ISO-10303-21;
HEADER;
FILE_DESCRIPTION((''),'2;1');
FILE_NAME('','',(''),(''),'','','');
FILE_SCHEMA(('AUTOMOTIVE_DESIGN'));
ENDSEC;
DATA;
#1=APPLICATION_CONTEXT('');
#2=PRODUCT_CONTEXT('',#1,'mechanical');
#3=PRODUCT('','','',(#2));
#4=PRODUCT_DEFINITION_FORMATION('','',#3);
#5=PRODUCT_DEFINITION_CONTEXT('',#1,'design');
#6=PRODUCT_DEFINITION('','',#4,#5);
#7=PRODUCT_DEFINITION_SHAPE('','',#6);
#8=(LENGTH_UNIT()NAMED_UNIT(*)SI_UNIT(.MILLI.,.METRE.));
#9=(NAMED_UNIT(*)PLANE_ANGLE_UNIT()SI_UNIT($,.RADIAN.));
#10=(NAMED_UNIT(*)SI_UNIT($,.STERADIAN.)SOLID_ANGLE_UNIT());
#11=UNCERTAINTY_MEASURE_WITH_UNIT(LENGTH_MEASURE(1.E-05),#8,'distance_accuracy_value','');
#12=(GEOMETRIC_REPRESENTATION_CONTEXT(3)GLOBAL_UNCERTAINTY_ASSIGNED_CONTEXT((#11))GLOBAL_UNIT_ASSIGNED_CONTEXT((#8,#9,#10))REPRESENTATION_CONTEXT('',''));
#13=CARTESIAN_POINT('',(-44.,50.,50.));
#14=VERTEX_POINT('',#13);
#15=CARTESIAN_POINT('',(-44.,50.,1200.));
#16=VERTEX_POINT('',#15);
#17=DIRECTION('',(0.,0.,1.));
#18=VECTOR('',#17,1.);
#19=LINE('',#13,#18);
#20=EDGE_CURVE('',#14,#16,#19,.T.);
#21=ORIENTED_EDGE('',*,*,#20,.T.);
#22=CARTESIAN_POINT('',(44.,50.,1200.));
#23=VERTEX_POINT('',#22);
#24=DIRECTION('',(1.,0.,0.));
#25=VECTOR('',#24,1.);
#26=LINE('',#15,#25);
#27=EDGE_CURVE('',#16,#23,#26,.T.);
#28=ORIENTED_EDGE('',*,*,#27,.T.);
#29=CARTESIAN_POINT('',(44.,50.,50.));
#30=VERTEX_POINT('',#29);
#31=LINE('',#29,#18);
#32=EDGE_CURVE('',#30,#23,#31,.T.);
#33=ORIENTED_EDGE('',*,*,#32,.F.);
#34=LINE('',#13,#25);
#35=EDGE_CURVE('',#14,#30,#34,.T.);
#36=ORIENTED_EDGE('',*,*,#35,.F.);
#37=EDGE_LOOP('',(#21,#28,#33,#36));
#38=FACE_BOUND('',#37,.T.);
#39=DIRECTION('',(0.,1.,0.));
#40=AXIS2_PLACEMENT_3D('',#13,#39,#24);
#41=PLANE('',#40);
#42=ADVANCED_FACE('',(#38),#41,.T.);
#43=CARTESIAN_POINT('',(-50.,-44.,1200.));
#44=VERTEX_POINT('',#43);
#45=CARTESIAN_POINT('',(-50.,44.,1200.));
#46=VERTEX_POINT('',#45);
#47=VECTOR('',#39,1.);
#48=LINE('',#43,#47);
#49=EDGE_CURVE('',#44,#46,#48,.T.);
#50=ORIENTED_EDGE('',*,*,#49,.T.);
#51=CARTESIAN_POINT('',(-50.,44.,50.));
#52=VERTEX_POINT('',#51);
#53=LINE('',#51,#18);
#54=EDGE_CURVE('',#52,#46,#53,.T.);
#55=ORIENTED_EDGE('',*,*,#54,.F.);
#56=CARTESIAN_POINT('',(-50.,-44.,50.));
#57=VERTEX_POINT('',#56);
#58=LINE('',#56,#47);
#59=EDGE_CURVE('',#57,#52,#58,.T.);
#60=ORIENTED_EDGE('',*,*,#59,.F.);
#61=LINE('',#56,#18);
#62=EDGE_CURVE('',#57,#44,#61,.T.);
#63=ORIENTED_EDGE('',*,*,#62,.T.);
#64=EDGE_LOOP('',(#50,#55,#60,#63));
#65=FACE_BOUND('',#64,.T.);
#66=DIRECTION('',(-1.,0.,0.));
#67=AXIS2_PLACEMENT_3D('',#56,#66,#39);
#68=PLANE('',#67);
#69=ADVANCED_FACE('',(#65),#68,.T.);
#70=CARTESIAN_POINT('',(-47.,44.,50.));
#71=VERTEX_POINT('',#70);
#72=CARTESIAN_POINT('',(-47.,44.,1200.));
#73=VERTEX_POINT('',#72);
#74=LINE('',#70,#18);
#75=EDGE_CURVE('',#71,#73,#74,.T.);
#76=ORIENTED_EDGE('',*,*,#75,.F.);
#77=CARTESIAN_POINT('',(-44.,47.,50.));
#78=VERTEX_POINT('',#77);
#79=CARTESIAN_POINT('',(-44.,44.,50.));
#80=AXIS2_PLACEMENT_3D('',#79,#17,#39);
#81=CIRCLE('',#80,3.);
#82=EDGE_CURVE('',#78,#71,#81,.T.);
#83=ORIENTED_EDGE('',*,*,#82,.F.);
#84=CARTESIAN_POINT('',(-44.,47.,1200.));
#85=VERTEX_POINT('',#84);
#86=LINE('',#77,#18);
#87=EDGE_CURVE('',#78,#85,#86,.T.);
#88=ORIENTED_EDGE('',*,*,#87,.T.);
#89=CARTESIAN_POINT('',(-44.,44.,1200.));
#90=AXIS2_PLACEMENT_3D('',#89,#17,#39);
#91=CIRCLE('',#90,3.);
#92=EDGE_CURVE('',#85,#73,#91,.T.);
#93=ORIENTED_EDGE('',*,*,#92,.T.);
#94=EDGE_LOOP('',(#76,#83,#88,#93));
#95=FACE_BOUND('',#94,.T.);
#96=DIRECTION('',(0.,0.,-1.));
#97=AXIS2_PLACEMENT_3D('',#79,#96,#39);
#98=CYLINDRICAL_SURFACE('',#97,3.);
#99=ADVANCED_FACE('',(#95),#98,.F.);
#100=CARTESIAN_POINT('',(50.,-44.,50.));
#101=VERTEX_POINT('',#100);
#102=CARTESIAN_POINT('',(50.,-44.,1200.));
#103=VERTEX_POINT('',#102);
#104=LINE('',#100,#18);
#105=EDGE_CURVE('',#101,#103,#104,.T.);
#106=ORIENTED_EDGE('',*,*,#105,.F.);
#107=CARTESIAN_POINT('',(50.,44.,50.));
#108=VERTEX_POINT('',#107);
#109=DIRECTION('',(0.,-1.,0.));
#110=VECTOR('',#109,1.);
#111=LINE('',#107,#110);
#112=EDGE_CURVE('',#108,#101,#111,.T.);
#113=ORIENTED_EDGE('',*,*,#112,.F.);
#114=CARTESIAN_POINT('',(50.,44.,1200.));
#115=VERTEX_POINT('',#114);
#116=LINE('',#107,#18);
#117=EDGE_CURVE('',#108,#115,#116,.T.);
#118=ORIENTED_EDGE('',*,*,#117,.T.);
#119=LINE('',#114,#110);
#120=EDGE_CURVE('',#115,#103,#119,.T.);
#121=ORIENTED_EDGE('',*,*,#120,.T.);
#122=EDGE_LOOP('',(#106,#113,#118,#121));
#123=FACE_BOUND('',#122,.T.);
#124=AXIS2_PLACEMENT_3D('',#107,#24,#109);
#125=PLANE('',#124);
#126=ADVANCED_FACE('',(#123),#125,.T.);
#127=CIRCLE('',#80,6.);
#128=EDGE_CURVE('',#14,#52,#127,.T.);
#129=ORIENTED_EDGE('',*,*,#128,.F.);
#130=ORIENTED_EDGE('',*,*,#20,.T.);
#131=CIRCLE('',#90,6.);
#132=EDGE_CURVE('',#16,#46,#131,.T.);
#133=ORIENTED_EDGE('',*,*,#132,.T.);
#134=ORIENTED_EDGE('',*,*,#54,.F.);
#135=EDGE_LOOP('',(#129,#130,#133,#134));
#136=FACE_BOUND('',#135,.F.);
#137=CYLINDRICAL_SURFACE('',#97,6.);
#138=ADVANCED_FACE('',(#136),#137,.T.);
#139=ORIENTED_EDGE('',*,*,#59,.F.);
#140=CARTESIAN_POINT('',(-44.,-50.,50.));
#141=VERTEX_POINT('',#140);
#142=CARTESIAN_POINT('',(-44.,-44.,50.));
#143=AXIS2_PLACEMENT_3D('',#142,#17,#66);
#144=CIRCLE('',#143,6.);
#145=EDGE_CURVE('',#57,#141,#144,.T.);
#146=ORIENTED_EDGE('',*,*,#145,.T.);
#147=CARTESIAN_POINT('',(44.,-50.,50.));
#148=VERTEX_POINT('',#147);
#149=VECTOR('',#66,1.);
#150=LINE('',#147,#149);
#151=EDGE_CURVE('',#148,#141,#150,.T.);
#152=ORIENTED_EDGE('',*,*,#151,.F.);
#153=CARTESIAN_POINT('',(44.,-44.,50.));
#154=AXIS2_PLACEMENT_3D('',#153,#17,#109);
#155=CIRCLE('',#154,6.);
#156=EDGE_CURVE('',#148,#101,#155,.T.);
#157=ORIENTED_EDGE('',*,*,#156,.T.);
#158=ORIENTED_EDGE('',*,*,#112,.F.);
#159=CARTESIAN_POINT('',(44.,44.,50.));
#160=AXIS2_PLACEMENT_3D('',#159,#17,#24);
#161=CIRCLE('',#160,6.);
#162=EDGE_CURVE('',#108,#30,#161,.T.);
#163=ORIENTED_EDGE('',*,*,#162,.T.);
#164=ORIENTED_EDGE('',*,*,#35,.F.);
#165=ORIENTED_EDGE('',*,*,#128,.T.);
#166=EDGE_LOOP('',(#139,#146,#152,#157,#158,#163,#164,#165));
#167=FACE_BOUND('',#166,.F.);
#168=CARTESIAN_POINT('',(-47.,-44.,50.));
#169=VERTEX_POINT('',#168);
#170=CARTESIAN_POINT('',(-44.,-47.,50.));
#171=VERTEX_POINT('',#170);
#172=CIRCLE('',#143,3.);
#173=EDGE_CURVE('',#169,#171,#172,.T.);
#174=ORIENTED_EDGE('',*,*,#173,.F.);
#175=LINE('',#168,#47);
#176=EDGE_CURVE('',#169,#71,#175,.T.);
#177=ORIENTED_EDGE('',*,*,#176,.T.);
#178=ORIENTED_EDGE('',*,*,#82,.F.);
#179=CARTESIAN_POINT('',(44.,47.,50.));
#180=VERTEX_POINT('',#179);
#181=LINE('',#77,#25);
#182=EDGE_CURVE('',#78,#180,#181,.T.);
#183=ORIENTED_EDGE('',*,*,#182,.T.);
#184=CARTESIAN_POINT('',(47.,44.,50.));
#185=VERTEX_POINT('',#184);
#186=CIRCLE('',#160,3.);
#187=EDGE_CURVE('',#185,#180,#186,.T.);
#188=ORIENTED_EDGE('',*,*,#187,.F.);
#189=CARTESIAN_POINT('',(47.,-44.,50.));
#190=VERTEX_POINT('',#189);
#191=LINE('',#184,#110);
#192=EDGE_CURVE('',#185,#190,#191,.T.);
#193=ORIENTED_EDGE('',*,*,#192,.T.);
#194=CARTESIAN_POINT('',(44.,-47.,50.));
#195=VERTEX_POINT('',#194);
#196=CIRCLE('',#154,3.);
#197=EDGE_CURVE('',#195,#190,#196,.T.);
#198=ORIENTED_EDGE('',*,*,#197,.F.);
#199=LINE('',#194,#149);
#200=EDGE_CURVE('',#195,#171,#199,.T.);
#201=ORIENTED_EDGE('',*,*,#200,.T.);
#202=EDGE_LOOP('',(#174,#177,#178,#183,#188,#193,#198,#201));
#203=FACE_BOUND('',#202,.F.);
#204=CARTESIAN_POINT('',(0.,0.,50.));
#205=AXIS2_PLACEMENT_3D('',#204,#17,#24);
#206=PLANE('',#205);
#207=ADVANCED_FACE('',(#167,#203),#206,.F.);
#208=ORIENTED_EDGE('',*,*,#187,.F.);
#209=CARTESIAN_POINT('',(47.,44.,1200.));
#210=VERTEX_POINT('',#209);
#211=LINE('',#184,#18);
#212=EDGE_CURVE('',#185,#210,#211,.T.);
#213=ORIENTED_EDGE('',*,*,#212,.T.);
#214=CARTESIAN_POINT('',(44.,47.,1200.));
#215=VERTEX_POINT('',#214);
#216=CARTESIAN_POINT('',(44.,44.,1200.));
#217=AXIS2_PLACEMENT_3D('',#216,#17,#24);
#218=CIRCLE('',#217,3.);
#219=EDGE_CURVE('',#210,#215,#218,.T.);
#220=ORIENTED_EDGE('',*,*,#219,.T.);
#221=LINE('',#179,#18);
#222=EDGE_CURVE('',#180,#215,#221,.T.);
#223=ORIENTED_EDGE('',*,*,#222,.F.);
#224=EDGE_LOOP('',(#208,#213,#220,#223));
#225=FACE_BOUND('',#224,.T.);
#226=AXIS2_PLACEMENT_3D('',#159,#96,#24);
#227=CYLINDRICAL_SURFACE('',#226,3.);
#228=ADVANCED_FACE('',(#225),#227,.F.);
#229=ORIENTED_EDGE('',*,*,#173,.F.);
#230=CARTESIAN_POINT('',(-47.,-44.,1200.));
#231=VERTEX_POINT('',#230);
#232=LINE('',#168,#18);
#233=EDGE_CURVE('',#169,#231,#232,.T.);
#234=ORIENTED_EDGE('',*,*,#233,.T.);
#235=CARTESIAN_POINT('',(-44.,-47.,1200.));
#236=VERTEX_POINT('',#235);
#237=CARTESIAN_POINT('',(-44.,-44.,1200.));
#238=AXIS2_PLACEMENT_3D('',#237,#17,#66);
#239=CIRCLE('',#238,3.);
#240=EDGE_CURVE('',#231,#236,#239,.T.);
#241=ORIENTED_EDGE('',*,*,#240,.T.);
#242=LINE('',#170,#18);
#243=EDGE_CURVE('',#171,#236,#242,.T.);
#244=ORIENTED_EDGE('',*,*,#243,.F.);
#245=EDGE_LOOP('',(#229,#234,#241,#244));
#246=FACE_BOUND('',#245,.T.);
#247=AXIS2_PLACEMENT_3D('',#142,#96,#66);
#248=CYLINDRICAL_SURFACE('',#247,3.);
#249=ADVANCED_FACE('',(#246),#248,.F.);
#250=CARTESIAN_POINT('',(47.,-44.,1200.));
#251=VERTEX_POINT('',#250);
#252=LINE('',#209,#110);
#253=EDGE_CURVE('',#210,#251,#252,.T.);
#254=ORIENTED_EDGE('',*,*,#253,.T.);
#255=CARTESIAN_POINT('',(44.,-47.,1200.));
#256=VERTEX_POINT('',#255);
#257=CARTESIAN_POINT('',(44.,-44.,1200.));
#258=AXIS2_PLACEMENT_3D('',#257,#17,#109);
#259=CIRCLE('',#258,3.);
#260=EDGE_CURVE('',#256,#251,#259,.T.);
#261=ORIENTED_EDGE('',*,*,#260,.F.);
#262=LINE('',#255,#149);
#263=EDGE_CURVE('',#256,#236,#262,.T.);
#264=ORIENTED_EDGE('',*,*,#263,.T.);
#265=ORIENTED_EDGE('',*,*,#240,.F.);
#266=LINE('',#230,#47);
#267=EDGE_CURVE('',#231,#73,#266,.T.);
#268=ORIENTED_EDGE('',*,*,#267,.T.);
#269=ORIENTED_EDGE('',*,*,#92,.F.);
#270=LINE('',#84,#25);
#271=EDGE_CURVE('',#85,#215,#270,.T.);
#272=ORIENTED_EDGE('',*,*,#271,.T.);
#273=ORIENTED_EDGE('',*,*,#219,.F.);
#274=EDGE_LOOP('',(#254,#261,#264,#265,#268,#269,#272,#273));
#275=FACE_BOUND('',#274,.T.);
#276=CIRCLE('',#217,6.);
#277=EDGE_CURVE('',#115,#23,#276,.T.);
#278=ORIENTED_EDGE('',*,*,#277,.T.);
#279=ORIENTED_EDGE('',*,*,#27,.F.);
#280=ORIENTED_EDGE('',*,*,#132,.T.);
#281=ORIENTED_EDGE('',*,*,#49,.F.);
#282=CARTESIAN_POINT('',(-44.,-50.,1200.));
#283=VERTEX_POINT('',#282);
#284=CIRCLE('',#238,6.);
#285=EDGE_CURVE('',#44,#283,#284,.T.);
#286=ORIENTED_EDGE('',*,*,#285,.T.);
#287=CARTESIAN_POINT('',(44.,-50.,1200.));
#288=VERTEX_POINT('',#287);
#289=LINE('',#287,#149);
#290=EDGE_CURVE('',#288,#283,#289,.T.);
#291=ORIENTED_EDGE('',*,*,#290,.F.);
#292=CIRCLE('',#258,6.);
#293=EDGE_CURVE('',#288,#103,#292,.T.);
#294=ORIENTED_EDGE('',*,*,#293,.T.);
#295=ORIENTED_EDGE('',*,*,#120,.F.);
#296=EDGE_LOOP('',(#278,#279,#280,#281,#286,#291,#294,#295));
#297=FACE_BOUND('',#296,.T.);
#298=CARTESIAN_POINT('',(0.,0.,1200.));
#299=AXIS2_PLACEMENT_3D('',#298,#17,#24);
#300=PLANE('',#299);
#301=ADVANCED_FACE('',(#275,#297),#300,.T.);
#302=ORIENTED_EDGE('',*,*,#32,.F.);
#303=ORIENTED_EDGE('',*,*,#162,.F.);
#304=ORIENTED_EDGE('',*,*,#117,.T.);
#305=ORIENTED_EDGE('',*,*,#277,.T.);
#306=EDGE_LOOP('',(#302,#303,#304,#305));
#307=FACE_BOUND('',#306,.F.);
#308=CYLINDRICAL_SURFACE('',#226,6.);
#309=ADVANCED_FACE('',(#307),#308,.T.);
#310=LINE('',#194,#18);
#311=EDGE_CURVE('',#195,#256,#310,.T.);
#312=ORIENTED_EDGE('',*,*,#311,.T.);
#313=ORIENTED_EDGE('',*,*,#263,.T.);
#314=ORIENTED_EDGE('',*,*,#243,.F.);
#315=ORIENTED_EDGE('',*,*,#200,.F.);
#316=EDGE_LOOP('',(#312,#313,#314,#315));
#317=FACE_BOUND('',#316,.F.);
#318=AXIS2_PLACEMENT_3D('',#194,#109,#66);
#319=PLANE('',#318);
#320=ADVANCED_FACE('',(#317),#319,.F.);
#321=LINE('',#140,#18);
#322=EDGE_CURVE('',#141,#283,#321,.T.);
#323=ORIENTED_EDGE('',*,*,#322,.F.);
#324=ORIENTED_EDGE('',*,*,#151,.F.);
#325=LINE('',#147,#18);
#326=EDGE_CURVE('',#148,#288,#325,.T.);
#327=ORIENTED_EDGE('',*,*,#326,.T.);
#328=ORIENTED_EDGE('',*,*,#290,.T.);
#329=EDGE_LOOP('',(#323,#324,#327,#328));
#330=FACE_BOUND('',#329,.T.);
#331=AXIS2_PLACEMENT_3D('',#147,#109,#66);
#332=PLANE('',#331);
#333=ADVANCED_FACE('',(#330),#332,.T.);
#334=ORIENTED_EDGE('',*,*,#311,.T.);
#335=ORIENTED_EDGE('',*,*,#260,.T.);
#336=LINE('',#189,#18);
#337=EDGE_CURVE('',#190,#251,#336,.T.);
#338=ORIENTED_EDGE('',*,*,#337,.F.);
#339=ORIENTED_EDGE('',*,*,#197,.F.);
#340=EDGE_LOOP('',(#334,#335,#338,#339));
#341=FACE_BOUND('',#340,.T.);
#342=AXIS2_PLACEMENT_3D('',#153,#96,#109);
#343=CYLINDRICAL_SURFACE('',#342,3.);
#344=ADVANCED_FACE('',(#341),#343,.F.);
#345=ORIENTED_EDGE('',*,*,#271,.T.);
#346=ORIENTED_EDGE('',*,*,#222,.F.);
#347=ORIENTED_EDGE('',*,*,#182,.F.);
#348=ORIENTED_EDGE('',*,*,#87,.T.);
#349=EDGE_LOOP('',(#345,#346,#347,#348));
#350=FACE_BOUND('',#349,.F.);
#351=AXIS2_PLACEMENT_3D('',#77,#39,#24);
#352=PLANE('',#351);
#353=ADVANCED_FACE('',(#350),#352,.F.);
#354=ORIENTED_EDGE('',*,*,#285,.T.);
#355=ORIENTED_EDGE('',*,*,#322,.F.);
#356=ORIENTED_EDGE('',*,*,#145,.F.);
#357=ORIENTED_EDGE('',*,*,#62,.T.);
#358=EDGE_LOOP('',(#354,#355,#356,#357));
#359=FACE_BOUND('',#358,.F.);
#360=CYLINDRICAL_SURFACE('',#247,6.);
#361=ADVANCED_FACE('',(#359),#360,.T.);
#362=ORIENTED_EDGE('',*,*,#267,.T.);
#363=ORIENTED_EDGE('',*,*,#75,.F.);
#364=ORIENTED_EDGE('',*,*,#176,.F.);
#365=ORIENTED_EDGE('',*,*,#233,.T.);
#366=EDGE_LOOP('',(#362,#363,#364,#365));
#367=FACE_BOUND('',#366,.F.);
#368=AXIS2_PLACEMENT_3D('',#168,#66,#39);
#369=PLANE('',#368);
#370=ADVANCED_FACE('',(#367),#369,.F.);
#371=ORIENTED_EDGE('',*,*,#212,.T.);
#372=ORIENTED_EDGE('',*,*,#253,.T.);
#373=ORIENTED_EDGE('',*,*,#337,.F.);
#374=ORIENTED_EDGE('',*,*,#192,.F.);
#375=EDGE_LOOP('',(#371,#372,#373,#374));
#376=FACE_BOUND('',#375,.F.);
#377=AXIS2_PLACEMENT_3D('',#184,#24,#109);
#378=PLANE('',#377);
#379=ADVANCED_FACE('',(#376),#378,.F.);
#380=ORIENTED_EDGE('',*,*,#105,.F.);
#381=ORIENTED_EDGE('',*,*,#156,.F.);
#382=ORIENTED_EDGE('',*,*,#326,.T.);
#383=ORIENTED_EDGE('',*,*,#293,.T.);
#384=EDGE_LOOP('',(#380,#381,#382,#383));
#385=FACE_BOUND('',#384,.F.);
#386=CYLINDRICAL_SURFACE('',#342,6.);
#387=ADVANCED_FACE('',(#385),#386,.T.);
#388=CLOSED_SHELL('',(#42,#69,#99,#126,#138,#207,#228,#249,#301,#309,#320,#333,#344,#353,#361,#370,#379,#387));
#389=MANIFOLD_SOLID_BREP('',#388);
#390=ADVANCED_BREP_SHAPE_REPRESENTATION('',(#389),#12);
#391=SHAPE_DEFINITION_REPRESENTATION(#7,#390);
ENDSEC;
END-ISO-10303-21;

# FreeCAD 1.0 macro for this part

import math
import FreeCAD as App
import Part
import Sketcher

V = App.Vector
Q = App.Units.Quantity

doc = App.newDocument("Part")
body = doc.addObject("PartDesign::Body", "Body")

sketch1 = body.newObject("Sketcher::SketchObject", "Sketch")
sketch1.AttachmentSupport = (doc.getObject("XY_Plane"), [""])
sketch1.MapMode = "FlatFace"
sketch1.AttachmentOffset = App.Placement(V(0, 0, 50), App.Rotation())
sketch1.addGeometry([
    Part.LineSegment(V(-50, 44, 0), V(-50, -44, 0)),
    Part.ArcOfCircle(Part.Circle(V(-44, -44, 0), V(0, 0, 1), 6), math.radians(180), math.radians(270)),
    Part.LineSegment(V(-44, -50, 0), V(44, -50, 0)),
    Part.ArcOfCircle(Part.Circle(V(44, -44, 0), V(0, 0, 1), 6), math.radians(-90), math.radians(0)),
    Part.LineSegment(V(50, -44, 0), V(50, 44, 0)),
    Part.ArcOfCircle(Part.Circle(V(44, 44, 0), V(0, 0, 1), 6), math.radians(0), math.radians(90)),
    Part.LineSegment(V(44, 50, 0), V(-44, 50, 0)),
    Part.ArcOfCircle(Part.Circle(V(-44, 44, 0), V(0, 0, 1), 6), math.radians(90), math.radians(180)),
    Part.ArcOfCircle(Part.Circle(V(-44, 44, 0), V(0, 0, 1), 3), math.radians(90), math.radians(180)),
    Part.LineSegment(V(-44, 47, 0), V(44, 47, 0)),
    Part.ArcOfCircle(Part.Circle(V(44, 44, 0), V(0, 0, 1), 3), math.radians(0), math.radians(90)),
    Part.LineSegment(V(47, 44, 0), V(47, -44, 0)),
    Part.ArcOfCircle(Part.Circle(V(44, -44, 0), V(0, 0, 1), 3), math.radians(-90), math.radians(0)),
    Part.LineSegment(V(44, -47, 0), V(-44, -47, 0)),
    Part.ArcOfCircle(Part.Circle(V(-44, -44, 0), V(0, 0, 1), 3), math.radians(180), math.radians(270)),
    Part.LineSegment(V(-47, -44, 0), V(-47, 44, 0)),
], False)
sketch1.addConstraint([
    Sketcher.Constraint("Tangent", 0, 2, 1, 1),
    Sketcher.Constraint("Tangent", 1, 2, 2, 1),
    Sketcher.Constraint("Tangent", 2, 2, 3, 1),
    Sketcher.Constraint("Tangent", 3, 2, 4, 1),
    Sketcher.Constraint("Tangent", 4, 2, 5, 1),
    Sketcher.Constraint("Tangent", 5, 2, 6, 1),
    Sketcher.Constraint("Tangent", 6, 2, 7, 1),
    Sketcher.Constraint("Tangent", 7, 2, 0, 1),
    Sketcher.Constraint("Tangent", 8, 1, 9, 1),
    Sketcher.Constraint("Tangent", 9, 2, 10, 2),
    Sketcher.Constraint("Tangent", 10, 1, 11, 1),
    Sketcher.Constraint("Tangent", 11, 2, 12, 2),
    Sketcher.Constraint("Tangent", 12, 1, 13, 1),
    Sketcher.Constraint("Tangent", 13, 2, 14, 2),
    Sketcher.Constraint("Tangent", 14, 1, 15, 1),
    Sketcher.Constraint("Tangent", 15, 2, 8, 2),
    Sketcher.Constraint("Vertical", 0),
    Sketcher.Constraint("Horizontal", 2),
    Sketcher.Constraint("Vertical", 4),
    Sketcher.Constraint("Horizontal", 6),
    Sketcher.Constraint("Horizontal", 9),
    Sketcher.Constraint("Vertical", 11),
    Sketcher.Constraint("Horizontal", 13),
    Sketcher.Constraint("Vertical", 15),
    Sketcher.Constraint("Coincident", 8, 3, 7, 3),
    Sketcher.Constraint("Coincident", 10, 3, 5, 3),
    Sketcher.Constraint("Coincident", 12, 3, 3, 3),
    Sketcher.Constraint("Equal", 1, 3),
    Sketcher.Constraint("Equal", 3, 5),
    Sketcher.Constraint("Equal", 5, 7),
    Sketcher.Constraint("Equal", 12, 14),
    Sketcher.Constraint("Symmetric", 1, 3, 5, 3, -1, 1),
    Sketcher.Constraint("Equal", 13, 0),
    Sketcher.Constraint("Radius", 1, Q("6 mm")),
    Sketcher.Constraint("Radius", 8, Q("3 mm")),
    Sketcher.Constraint("DistanceX", 0, 2, -1, 1, Q("50 mm")),
])
pad1 = body.newObject("PartDesign::Pad", "Pad")
pad1.Profile = sketch1
pad1.Length = 1150

doc.recompute()
